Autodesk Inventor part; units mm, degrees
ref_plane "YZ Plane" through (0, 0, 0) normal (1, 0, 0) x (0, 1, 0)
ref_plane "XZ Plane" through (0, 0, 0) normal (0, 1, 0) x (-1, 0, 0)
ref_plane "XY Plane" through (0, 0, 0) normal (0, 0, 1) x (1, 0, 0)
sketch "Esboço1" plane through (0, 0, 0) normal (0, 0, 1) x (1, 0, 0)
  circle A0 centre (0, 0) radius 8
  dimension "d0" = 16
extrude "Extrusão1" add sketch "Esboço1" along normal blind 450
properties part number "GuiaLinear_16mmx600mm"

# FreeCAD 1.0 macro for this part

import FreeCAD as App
import Part
import Sketcher

doc = App.newDocument("Part")
params = doc.addObject("Spreadsheet::Sheet", "Params")
for row, (alias, value) in enumerate([
    ("sketch1_diameter", "16 mm"),
    ("pad1_length", "450 mm"),
], start=1):
    params.set(f"A{row}", alias)
    params.set(f"B{row}", "=" + value)
    params.setAlias(f"B{row}", alias)

body = doc.addObject("PartDesign::Body", "Body")

# Sketch on XY plane
sketch1 = body.newObject("Sketcher::SketchObject", "Sketch")
sketch1.AttachmentSupport = (doc.getObject("XY_Plane"), [""])
sketch1.MapMode = "FlatFace"
sketch1.addGeometry(Part.Circle(App.Vector(0, 0, 0), App.Vector(0, 0, 1), 8), False)
sketch1.addConstraint([
    Sketcher.Constraint("Coincident", 0, 3, -1, 1),
    Sketcher.Constraint("Diameter", 0, 16.0),
])
sketch1.setExpression("Constraints[1]", "Params.sketch1_diameter")
pad1 = body.newObject("PartDesign::Pad", "Pad")
pad1.Profile = sketch1
pad1.setExpression("Length", "Params.pad1_length")

doc.recompute()
